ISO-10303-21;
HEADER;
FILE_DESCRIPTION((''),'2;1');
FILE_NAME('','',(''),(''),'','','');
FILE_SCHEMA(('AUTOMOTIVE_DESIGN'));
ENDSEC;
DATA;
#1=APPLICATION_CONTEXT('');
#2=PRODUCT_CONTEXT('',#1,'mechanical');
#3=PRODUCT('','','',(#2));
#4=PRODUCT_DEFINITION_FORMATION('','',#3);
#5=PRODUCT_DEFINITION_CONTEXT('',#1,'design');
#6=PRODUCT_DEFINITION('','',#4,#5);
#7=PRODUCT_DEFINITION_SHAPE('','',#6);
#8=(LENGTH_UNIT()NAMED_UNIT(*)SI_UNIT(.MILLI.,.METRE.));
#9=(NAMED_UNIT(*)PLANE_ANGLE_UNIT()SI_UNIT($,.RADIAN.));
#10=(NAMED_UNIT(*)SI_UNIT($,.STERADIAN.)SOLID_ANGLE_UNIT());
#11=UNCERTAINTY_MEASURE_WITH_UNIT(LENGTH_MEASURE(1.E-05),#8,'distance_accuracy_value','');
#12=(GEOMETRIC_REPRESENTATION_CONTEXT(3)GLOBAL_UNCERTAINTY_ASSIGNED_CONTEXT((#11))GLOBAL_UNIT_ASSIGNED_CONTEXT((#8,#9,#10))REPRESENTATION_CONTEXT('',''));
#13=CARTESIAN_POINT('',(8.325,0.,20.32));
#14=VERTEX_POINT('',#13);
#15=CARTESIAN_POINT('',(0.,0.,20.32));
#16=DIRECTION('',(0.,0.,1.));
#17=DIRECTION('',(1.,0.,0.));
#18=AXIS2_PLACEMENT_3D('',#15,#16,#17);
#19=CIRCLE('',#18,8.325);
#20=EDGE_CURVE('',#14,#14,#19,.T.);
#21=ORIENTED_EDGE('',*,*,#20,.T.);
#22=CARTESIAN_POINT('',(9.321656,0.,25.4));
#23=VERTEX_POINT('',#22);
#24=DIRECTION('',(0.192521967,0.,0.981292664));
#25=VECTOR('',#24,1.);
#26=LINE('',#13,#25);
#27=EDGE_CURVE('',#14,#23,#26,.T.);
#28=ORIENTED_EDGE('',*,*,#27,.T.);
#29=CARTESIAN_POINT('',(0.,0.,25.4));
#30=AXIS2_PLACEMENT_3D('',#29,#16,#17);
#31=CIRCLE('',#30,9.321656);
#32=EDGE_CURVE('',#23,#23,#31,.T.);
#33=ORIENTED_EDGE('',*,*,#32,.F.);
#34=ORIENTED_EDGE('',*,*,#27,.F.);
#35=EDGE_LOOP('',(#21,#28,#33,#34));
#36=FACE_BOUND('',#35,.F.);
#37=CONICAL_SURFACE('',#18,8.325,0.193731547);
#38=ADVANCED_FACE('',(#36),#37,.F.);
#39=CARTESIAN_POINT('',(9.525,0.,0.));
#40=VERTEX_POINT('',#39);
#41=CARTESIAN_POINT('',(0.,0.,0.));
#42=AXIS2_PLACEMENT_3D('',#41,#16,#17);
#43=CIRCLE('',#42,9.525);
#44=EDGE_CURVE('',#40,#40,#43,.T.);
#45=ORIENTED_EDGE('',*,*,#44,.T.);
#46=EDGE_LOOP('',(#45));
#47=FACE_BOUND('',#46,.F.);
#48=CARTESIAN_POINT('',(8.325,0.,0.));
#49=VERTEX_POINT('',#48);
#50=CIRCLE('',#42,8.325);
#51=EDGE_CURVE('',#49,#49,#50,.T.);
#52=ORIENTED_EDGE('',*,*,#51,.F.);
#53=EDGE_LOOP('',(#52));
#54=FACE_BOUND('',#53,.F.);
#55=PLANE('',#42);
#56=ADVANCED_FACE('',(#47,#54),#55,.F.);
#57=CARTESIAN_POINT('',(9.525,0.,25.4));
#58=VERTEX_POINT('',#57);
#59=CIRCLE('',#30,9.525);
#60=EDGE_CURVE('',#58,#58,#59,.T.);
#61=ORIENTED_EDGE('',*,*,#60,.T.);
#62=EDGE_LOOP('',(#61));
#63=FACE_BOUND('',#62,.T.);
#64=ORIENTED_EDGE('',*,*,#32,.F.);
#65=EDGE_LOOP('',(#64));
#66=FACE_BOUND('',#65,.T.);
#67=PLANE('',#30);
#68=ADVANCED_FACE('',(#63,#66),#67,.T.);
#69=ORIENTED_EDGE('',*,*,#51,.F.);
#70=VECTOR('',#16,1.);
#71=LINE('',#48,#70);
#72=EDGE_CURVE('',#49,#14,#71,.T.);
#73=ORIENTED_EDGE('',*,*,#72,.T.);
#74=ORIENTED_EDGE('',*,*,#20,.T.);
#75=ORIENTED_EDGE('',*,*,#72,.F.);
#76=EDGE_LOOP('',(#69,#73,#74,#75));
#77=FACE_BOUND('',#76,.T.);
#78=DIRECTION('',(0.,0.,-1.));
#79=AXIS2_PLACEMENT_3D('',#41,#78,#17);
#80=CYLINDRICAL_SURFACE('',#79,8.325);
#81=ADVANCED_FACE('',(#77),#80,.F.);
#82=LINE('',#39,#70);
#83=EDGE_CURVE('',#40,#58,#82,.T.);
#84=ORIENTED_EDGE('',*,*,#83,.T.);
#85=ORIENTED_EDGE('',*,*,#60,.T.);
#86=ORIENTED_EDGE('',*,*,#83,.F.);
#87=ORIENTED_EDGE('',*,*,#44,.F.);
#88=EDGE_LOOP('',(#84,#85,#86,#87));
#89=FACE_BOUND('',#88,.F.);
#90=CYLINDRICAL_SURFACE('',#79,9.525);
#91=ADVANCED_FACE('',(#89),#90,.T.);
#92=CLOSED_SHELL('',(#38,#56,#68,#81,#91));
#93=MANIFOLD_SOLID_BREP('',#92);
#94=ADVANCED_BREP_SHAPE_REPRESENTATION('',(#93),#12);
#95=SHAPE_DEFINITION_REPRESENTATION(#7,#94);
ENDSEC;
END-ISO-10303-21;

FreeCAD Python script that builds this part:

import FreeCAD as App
import Part
import Sketcher
from FreeCAD import Vector
Q = App.Units.Quantity


def edges_at(feature, points):
    """Names of the edges that pass closest to the given points."""
    edges = feature.Shape.Edges
    near = lambda p: min(range(len(edges)), key=lambda i: edges[i].distToShape(Part.Vertex(*p))[0])
    return sorted({f"Edge{near(p) + 1}" for p in points})


def faces_at(feature, points):
    """Names of the faces that lie closest to the given points."""
    faces = feature.Shape.Faces
    near = lambda p: min(range(len(faces)), key=lambda i: faces[i].distToShape(Part.Vertex(*p))[0])
    return sorted({f"Face{near(p) + 1}" for p in points})

doc = App.newDocument("Part")
body = doc.addObject("PartDesign::Body", "Body")

# Sketch on XY plane
sketch1 = body.newObject("Sketcher::SketchObject", "Sketch")
sketch1.AttachmentSupport = (doc.getObject("XY_Plane"), [""])
sketch1.MapMode = "FlatFace"
sketch1.addGeometry(Part.Circle(Vector(0, 0, 0), Vector(0, 0, 1), 10), False)
sketch1.addConstraint([
    Sketcher.Constraint("Coincident", 0, 3, -1, 1),
    Sketcher.Constraint("Diameter", 0, Q("0.75 in")),
])
pad1 = body.newObject("PartDesign::Pad", "Pad")
pad1.Profile = sketch1
pad1.Length = Q("1 in")
doc.recompute()

thickness = body.newObject("PartDesign::Thickness", "Thickness")
thickness.Base = (pad1, faces_at(pad1, [(0, 0, 25.4), (0, 0, 0)]))
thickness.Value = 1.2
thickness.Reversed = True
thickness.Join = "Arc"
doc.recompute()

chamfer = body.newObject("PartDesign::Chamfer", "Chamfer")
chamfer.Base = (thickness, edges_at(thickness, [(-8.325, 0, 25.4)]))
chamfer.ChamferType = "Two distances"
chamfer.Size = Q("0.2 in")
chamfer.Size2 = 0.996656

doc.recompute()
